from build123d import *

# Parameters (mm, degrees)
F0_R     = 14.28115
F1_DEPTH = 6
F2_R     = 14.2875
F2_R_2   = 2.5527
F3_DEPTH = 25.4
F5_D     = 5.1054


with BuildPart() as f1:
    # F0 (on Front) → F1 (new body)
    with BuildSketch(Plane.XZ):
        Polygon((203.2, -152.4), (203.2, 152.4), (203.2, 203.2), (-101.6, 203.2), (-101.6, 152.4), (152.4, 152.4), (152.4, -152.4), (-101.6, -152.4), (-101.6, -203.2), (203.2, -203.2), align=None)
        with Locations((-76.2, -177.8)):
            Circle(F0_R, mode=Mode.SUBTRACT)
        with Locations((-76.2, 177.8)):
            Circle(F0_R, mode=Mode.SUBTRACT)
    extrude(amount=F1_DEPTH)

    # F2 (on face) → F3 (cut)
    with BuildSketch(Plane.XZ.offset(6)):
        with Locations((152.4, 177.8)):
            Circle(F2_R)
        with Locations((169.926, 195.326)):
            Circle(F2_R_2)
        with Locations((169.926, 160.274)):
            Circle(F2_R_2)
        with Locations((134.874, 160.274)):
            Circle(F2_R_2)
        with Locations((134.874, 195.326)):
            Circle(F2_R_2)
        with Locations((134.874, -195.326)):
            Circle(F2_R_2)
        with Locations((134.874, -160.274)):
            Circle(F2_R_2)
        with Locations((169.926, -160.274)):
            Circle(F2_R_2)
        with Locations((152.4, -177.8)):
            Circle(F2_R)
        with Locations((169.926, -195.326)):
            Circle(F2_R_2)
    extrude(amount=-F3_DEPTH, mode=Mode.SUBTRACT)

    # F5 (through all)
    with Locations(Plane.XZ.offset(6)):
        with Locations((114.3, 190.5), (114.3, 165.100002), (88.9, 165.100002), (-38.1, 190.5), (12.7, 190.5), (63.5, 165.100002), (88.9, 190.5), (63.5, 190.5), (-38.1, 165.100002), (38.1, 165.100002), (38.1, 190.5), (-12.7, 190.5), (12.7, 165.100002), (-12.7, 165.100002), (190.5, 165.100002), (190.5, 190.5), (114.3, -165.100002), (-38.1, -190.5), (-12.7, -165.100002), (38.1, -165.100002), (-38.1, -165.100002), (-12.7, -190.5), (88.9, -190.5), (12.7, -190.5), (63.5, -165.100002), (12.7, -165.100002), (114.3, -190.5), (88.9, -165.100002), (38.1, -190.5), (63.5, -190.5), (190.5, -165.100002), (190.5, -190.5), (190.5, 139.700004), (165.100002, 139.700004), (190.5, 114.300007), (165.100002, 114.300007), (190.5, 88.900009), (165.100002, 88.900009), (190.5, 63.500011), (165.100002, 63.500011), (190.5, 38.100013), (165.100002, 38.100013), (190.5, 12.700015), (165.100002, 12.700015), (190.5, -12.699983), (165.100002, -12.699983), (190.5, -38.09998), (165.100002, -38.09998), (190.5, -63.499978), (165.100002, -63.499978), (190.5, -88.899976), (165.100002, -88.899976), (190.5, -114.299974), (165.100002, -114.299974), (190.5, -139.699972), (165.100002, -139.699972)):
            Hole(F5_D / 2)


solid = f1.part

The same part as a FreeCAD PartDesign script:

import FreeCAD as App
import Part
import Sketcher
Q = App.Units.Quantity

doc = App.newDocument("Part")
params = doc.addObject("Spreadsheet::Sheet", "Params")
for row, (alias, value) in enumerate([
    ("sketch1_width", "12 in"),
    ("sketch1_width2", "10 in"),
    ("sketch1_height", "2 in"),
    ("pad1_length", "6 mm"),
    ("sketch2_diameter", "1.125 in"),
    ("sketch2_diameter2", "0.201 in"),
    ("pocket1_length", "1 in"),
    ("sketch3_diameter", "0.201 in"),
    ("hole_diameter", "0.201 in"),
], start=1):
    params.set(f"A{row}", alias)
    params.set(f"B{row}", "=" + value)
    params.setAlias(f"B{row}", alias)

body = doc.addObject("PartDesign::Body", "Body")

sketch1 = body.newObject("Sketcher::SketchObject", "Sketch")
sketch1.AttachmentSupport = (doc.getObject("XZ_Plane"), [""])
sketch1.MapMode = "FlatFace"
sketch1.addGeometry([
    Part.LineSegment(App.Vector(203, 203, 0), App.Vector(-102, 203, 0)),
    Part.LineSegment(App.Vector(-102, 203, 0), App.Vector(-102, 152, 0)),
    Part.LineSegment(App.Vector(-102, 152, 0), App.Vector(152, 152, 0)),
    Part.LineSegment(App.Vector(152, 152, 0), App.Vector(152, -152, 0)),
    Part.LineSegment(App.Vector(152, -152, 0), App.Vector(-102, -152, 0)),
    Part.LineSegment(App.Vector(-102, -152, 0), App.Vector(-102, -203, 0)),
    Part.LineSegment(App.Vector(-102, -203, 0), App.Vector(203, -203, 0)),
    Part.LineSegment(App.Vector(203, -203, 0), App.Vector(203, 203, 0)),
    Part.Circle(App.Vector(-76, -178, 0), App.Vector(0, 0, 1), 14),
    Part.Circle(App.Vector(-76, 178, 0), App.Vector(0, 0, 1), 14),
], False)
sketch1.addConstraint([
    Sketcher.Constraint("Coincident", 0, 2, 1, 1),
    Sketcher.Constraint("Coincident", 1, 2, 2, 1),
    Sketcher.Constraint("Coincident", 2, 2, 3, 1),
    Sketcher.Constraint("Coincident", 3, 2, 4, 1),
    Sketcher.Constraint("Coincident", 4, 2, 5, 1),
    Sketcher.Constraint("Coincident", 5, 2, 6, 1),
    Sketcher.Constraint("Coincident", 6, 2, 7, 1),
    Sketcher.Constraint("Coincident", 7, 2, 0, 1),
    Sketcher.Constraint("Horizontal", 0),
    Sketcher.Constraint("Vertical", 1),
    Sketcher.Constraint("Horizontal", 2),
    Sketcher.Constraint("Vertical", 3),
    Sketcher.Constraint("Horizontal", 4),
    Sketcher.Constraint("Vertical", 5),
    Sketcher.Constraint("Horizontal", 6),
    Sketcher.Constraint("Vertical", 7),
    Sketcher.Constraint("Equal", 8, 9),
    Sketcher.Constraint("Symmetric", 8, 3, 9, 3, -1),
    Sketcher.Constraint("Symmetric", 1, 2, 4, 2, -1),
    Sketcher.Constraint("Equal", 6, 3),
    Sketcher.Constraint("Equal", 1, 5),
    Sketcher.Constraint("DistanceX", 0, 2, 0, 1, Q("12 in")),
    Sketcher.Constraint("DistanceX", 2, 1, 2, 2, Q("10 in")),
    Sketcher.Constraint("DistanceY", 1, 2, 1, 1, Q("2 in")),
    Sketcher.Constraint("DistanceX", 8, 3, -1, 1, Q("3 in")),
    Sketcher.Constraint("DistanceY", 8, 3, -1, 1, Q("7 in")),
    Sketcher.Constraint("DistanceX", 0, 2, -1, 1, Q("4 in")),
    Sketcher.Constraint("Diameter", 8, Q("1.1245 in")),
])
sketch1.setExpression("Constraints[21]", "Params.sketch1_width")
sketch1.setExpression("Constraints[22]", "Params.sketch1_width2")
sketch1.setExpression("Constraints[23]", "Params.sketch1_height")
pad1 = body.newObject("PartDesign::Pad", "Pad")
pad1.Profile = sketch1
pad1.setExpression("Length", "Params.pad1_length")

sketch2 = body.newObject("Sketcher::SketchObject", "Sketch001")
sketch2.AttachmentSupport = (doc.getObject("XZ_Plane"), [""])
sketch2.MapMode = "FlatFace"
sketch2.AttachmentOffset = App.Placement(App.Vector(0, 0, 6), App.Rotation())
sketch2.addGeometry([
    Part.Circle(App.Vector(152.4, 177.8, 0), App.Vector(0, 0, 1), 14.3),
    Part.Circle(App.Vector(169.9, 195.3, 0), App.Vector(0, 0, 1), 2.6),
    Part.Circle(App.Vector(169.9, 160.3, 0), App.Vector(0, 0, 1), 2.6),
    Part.Circle(App.Vector(134.9, 160.3, 0), App.Vector(0, 0, 1), 2.6),
    Part.Circle(App.Vector(134.9, 195.3, 0), App.Vector(0, 0, 1), 2.6),
    Part.Circle(App.Vector(134.9, -195.3, 0), App.Vector(0, 0, 1), 2.6),
    Part.Circle(App.Vector(134.9, -160.3, 0), App.Vector(0, 0, 1), 2.6),
    Part.Circle(App.Vector(169.9, -160.3, 0), App.Vector(0, 0, 1), 2.6),
    Part.Circle(App.Vector(152.4, -177.8, 0), App.Vector(0, 0, 1), 14.3),
    Part.Circle(App.Vector(169.9, -195.3, 0), App.Vector(0, 0, 1), 2.6),
], False)
sketch2.addConstraint([
    Sketcher.Constraint("Equal", 1, 2),
    Sketcher.Constraint("Equal", 2, 3),
    Sketcher.Constraint("Equal", 3, 4),
    Sketcher.Constraint("Equal", 4, 5),
    Sketcher.Constraint("Equal", 5, 6),
    Sketcher.Constraint("Equal", 6, 7),
    Sketcher.Constraint("Equal", 0, 8),
    Sketcher.Constraint("Equal", 7, 9),
    Sketcher.Constraint("Symmetric", 4, 3, 5, 3, -1),
    Sketcher.Constraint("Symmetric", 3, 3, 6, 3, -1),
    Sketcher.Constraint("Symmetric", 2, 3, 7, 3, -1),
    Sketcher.Constraint("Symmetric", 0, 3, 8, 3, -1),
    Sketcher.Constraint("Symmetric", 1, 3, 9, 3, -1),
    Sketcher.Constraint("Horizontal", 2, 3, 3, 3),
    Sketcher.Constraint("Horizontal", 1, 3, 4, 3),
    Sketcher.Constraint("Vertical", 1, 3, 2, 3),
    Sketcher.Constraint("Vertical", 3, 3, 4, 3),
    Sketcher.Constraint("Diameter", 0, Q("1.125 in")),
    Sketcher.Constraint("Diameter", 1, Q("0.201 in")),
    Sketcher.Constraint("DistanceX", -1, 1, 0, 3, Q("6 in")),
    Sketcher.Constraint("DistanceY", -1, 1, 0, 3, Q("7 in")),
    Sketcher.Constraint("DistanceY", 5, 3, 3, 3, Q("14 in")),
    Sketcher.Constraint("DistanceX", -1, 1, 1, 3, Q("6.69 in")),
    Sketcher.Constraint("DistanceY", -1, 1, 1, 3, Q("7.69 in")),
    Sketcher.Constraint("DistanceX", -1, 1, 3, 3, Q("5.31 in")),
])
sketch2.setExpression("Constraints[17]", "Params.sketch2_diameter")
sketch2.setExpression("Constraints[18]", "Params.sketch2_diameter2")
pocket1 = body.newObject("PartDesign::Pocket", "Pocket")
pocket1.Profile = sketch2
pocket1.setExpression("Length", "Params.pocket1_length")

sketch3 = body.newObject("Sketcher::SketchObject", "Sketch002")
sketch3.AttachmentSupport = (doc.getObject("XZ_Plane"), [""])
sketch3.MapMode = "FlatFace"
sketch3.AttachmentOffset = App.Placement(App.Vector(0, 0, 6), App.Rotation())
sketch3.addGeometry([
    Part.Circle(App.Vector(114.3, 190.5, 0), App.Vector(0, 0, 1), 2.6),
    Part.Circle(App.Vector(114.3, 165.1, 0), App.Vector(0, 0, 1), 2.6),
    Part.Circle(App.Vector(88.9, 165.1, 0), App.Vector(0, 0, 1), 2.6),
    Part.Circle(App.Vector(-38.1, 190.5, 0), App.Vector(0, 0, 1), 2.6),
    Part.Circle(App.Vector(12.7, 190.5, 0), App.Vector(0, 0, 1), 2.6),
    Part.Circle(App.Vector(63.5, 165.1, 0), App.Vector(0, 0, 1), 2.6),
    Part.Circle(App.Vector(88.9, 190.5, 0), App.Vector(0, 0, 1), 2.6),
    Part.Circle(App.Vector(63.5, 190.5, 0), App.Vector(0, 0, 1), 2.6),
    Part.Circle(App.Vector(-38.1, 165.1, 0), App.Vector(0, 0, 1), 2.6),
    Part.Circle(App.Vector(38.1, 165.1, 0), App.Vector(0, 0, 1), 2.6),
    Part.Circle(App.Vector(38.1, 190.5, 0), App.Vector(0, 0, 1), 2.6),
    Part.Circle(App.Vector(-12.7, 190.5, 0), App.Vector(0, 0, 1), 2.6),
    Part.Circle(App.Vector(12.7, 165.1, 0), App.Vector(0, 0, 1), 2.6),
    Part.Circle(App.Vector(-12.7, 165.1, 0), App.Vector(0, 0, 1), 2.6),
    Part.Circle(App.Vector(190.5, 165.1, 0), App.Vector(0, 0, 1), 2.6),
    Part.Circle(App.Vector(190.5, 190.5, 0), App.Vector(0, 0, 1), 2.6),
    Part.Circle(App.Vector(114.3, -165.1, 0), App.Vector(0, 0, 1), 2.6),
    Part.Circle(App.Vector(-38.1, -190.5, 0), App.Vector(0, 0, 1), 2.6),
    Part.Circle(App.Vector(-12.7, -165.1, 0), App.Vector(0, 0, 1), 2.6),
    Part.Circle(App.Vector(38.1, -165.1, 0), App.Vector(0, 0, 1), 2.6),
    Part.Circle(App.Vector(-38.1, -165.1, 0), App.Vector(0, 0, 1), 2.6),
    Part.Circle(App.Vector(-12.7, -190.5, 0), App.Vector(0, 0, 1), 2.6),
    Part.Circle(App.Vector(88.9, -190.5, 0), App.Vector(0, 0, 1), 2.6),
    Part.Circle(App.Vector(12.7, -190.5, 0), App.Vector(0, 0, 1), 2.6),
    Part.Circle(App.Vector(63.5, -165.1, 0), App.Vector(0, 0, 1), 2.6),
    Part.Circle(App.Vector(12.7, -165.1, 0), App.Vector(0, 0, 1), 2.6),
    Part.Circle(App.Vector(114.3, -190.5, 0), App.Vector(0, 0, 1), 2.6),
    Part.Circle(App.Vector(88.9, -165.1, 0), App.Vector(0, 0, 1), 2.6),
    Part.Circle(App.Vector(38.1, -190.5, 0), App.Vector(0, 0, 1), 2.6),
    Part.Circle(App.Vector(63.5, -190.5, 0), App.Vector(0, 0, 1), 2.6),
    Part.Circle(App.Vector(190.5, -165.1, 0), App.Vector(0, 0, 1), 2.6),
    Part.Circle(App.Vector(190.5, -190.5, 0), App.Vector(0, 0, 1), 2.6),
    Part.Circle(App.Vector(190.5, 139.7, 0), App.Vector(0, 0, 1), 2.6),
    Part.Circle(App.Vector(165.1, 139.7, 0), App.Vector(0, 0, 1), 2.6),
    Part.Circle(App.Vector(190.5, 114.3, 0), App.Vector(0, 0, 1), 2.6),
    Part.Circle(App.Vector(165.1, 114.3, 0), App.Vector(0, 0, 1), 2.6),
    Part.Circle(App.Vector(190.5, 88.9, 0), App.Vector(0, 0, 1), 2.6),
    Part.Circle(App.Vector(165.1, 88.9, 0), App.Vector(0, 0, 1), 2.6),
    Part.Circle(App.Vector(190.5, 63.5, 0), App.Vector(0, 0, 1), 2.6),
    Part.Circle(App.Vector(165.1, 63.5, 0), App.Vector(0, 0, 1), 2.6),
    Part.Circle(App.Vector(190.5, 38.1, 0), App.Vector(0, 0, 1), 2.6),
    Part.Circle(App.Vector(165.1, 38.1, 0), App.Vector(0, 0, 1), 2.6),
    Part.Circle(App.Vector(190.5, 12.7, 0), App.Vector(0, 0, 1), 2.6),
    Part.Circle(App.Vector(165.1, 12.7, 0), App.Vector(0, 0, 1), 2.6),
    Part.Circle(App.Vector(190.5, -12.7, 0), App.Vector(0, 0, 1), 2.6),
    Part.Circle(App.Vector(165.1, -12.7, 0), App.Vector(0, 0, 1), 2.6),
    Part.Circle(App.Vector(190.5, -38.1, 0), App.Vector(0, 0, 1), 2.6),
    Part.Circle(App.Vector(165.1, -38.1, 0), App.Vector(0, 0, 1), 2.6),
    Part.Circle(App.Vector(190.5, -63.5, 0), App.Vector(0, 0, 1), 2.6),
    Part.Circle(App.Vector(165.1, -63.5, 0), App.Vector(0, 0, 1), 2.6),
    Part.Circle(App.Vector(190.5, -88.9, 0), App.Vector(0, 0, 1), 2.6),
    Part.Circle(App.Vector(165.1, -88.9, 0), App.Vector(0, 0, 1), 2.6),
    Part.Circle(App.Vector(190.5, -114.3, 0), App.Vector(0, 0, 1), 2.6),
    Part.Circle(App.Vector(165.1, -114.3, 0), App.Vector(0, 0, 1), 2.6),
    Part.Circle(App.Vector(190.5, -139.7, 0), App.Vector(0, 0, 1), 2.6),
    Part.Circle(App.Vector(165.1, -139.7, 0), App.Vector(0, 0, 1), 2.6),
], False)
sketch3.addConstraint([
    Sketcher.Constraint("Equal", 0, 1),
    Sketcher.Constraint("Equal", 1, 2),
    Sketcher.Constraint("Equal", 2, 3),
    Sketcher.Constraint("Equal", 3, 4),
    Sketcher.Constraint("Equal", 4, 5),
    Sketcher.Constraint("Equal", 5, 6),
    Sketcher.Constraint("Equal", 6, 7),
    Sketcher.Constraint("Equal", 7, 8),
    Sketcher.Constraint("Equal", 8, 9),
    Sketcher.Constraint("Equal", 9, 10),
    Sketcher.Constraint("Equal", 10, 11),
    Sketcher.Constraint("Equal", 11, 12),
    Sketcher.Constraint("Equal", 12, 13),
    Sketcher.Constraint("Equal", 13, 14),
    Sketcher.Constraint("Equal", 14, 15),
    Sketcher.Constraint("Equal", 15, 16),
    Sketcher.Constraint("Equal", 16, 17),
    Sketcher.Constraint("Equal", 17, 18),
    Sketcher.Constraint("Equal", 18, 19),
    Sketcher.Constraint("Equal", 19, 20),
    Sketcher.Constraint("Equal", 20, 21),
    Sketcher.Constraint("Equal", 21, 22),
    Sketcher.Constraint("Equal", 22, 23),
    Sketcher.Constraint("Equal", 23, 24),
    Sketcher.Constraint("Equal", 24, 25),
    Sketcher.Constraint("Equal", 25, 26),
    Sketcher.Constraint("Equal", 26, 27),
    Sketcher.Constraint("Equal", 27, 28),
    Sketcher.Constraint("Equal", 28, 29),
    Sketcher.Constraint("Equal", 29, 30),
    Sketcher.Constraint("Equal", 30, 31),
    Sketcher.Constraint("Equal", 31, 32),
    Sketcher.Constraint("Equal", 32, 33),
    Sketcher.Constraint("Equal", 33, 34),
    Sketcher.Constraint("Equal", 34, 35),
    Sketcher.Constraint("Equal", 35, 36),
    Sketcher.Constraint("Equal", 36, 37),
    Sketcher.Constraint("Equal", 37, 38),
    Sketcher.Constraint("Equal", 38, 39),
    Sketcher.Constraint("Equal", 39, 40),
    Sketcher.Constraint("Equal", 40, 41),
    Sketcher.Constraint("Equal", 41, 42),
    Sketcher.Constraint("Equal", 42, 43),
    Sketcher.Constraint("Equal", 43, 44),
    Sketcher.Constraint("Equal", 44, 45),
    Sketcher.Constraint("Equal", 45, 46),
    Sketcher.Constraint("Equal", 46, 47),
    Sketcher.Constraint("Equal", 47, 48),
    Sketcher.Constraint("Equal", 48, 49),
    Sketcher.Constraint("Equal", 49, 50),
    Sketcher.Constraint("Equal", 50, 51),
    Sketcher.Constraint("Equal", 51, 52),
    Sketcher.Constraint("Equal", 52, 53),
    Sketcher.Constraint("Equal", 53, 54),
    Sketcher.Constraint("Equal", 54, 55),
    Sketcher.Constraint("Symmetric", 10, 3, 17, 3, -1, 1),
    Sketcher.Constraint("Symmetric", 12, 3, 18, 3, -1, 1),
    Sketcher.Constraint("Symmetric", 8, 3, 19, 3, -1, 1),
    Sketcher.Constraint("Symmetric", 9, 3, 20, 3, -1, 1),
    Sketcher.Constraint("Symmetric", 4, 3, 21, 3, -1, 1),
    Sketcher.Constraint("Symmetric", 11, 3, 23, 3, -1, 1),
    Sketcher.Constraint("Symmetric", 13, 3, 25, 3, -1, 1),
    Sketcher.Constraint("Symmetric", 3, 3, 28, 3, -1, 1),
    Sketcher.Constraint("Symmetric", 8, 3, 9, 3, -2),
    Sketcher.Constraint("Symmetric", 3, 3, 10, 3, -2),
    Sketcher.Constraint("Symmetric", 4, 3, 11, 3, -2),
    Sketcher.Constraint("Symmetric", 12, 3, 13, 3, -2),
    Sketcher.Constraint("Symmetric", 1, 3, 16, 3, -1),
    Sketcher.Constraint("Symmetric", 6, 3, 22, 3, -1),
    Sketcher.Constraint("Symmetric", 5, 3, 24, 3, -1),
    Sketcher.Constraint("Symmetric", 0, 3, 26, 3, -1),
    Sketcher.Constraint("Symmetric", 2, 3, 27, 3, -1),
    Sketcher.Constraint("Symmetric", 7, 3, 29, 3, -1),
    Sketcher.Constraint("Symmetric", 14, 3, 30, 3, -1),
    Sketcher.Constraint("Symmetric", 15, 3, 31, 3, -1),
    Sketcher.Constraint("Horizontal", 1, 3, 2, 3),
    Sketcher.Constraint("Horizontal", 0, 3, 3, 3),
    Sketcher.Constraint("Horizontal", 3, 3, 4, 3),
    Sketcher.Constraint("Horizontal", 2, 3, 5, 3),
    Sketcher.Constraint("Horizontal", 4, 3, 6, 3),
    Sketcher.Constraint("Horizontal", 6, 3, 7, 3),
    Sketcher.Constraint("Horizontal", 5, 3, 8, 3),
    Sketcher.Constraint("Horizontal", 9, 3, 12, 3),
    Sketcher.Constraint("Horizontal", 13, 3, 14, 3),
    Sketcher.Constraint("Horizontal", 11, 3, 15, 3),
    Sketcher.Constraint("Horizontal", 32, 3, 33, 3),
    Sketcher.Constraint("Horizontal", 34, 3, 35, 3),
    Sketcher.Constraint("Horizontal", 36, 3, 37, 3),
    Sketcher.Constraint("Horizontal", 38, 3, 39, 3),
    Sketcher.Constraint("Horizontal", 40, 3, 41, 3),
    Sketcher.Constraint("Horizontal", 42, 3, 43, 3),
    Sketcher.Constraint("Horizontal", 44, 3, 45, 3),
    Sketcher.Constraint("Horizontal", 46, 3, 47, 3),
    Sketcher.Constraint("Horizontal", 48, 3, 49, 3),
    Sketcher.Constraint("Horizontal", 50, 3, 51, 3),
    Sketcher.Constraint("Horizontal", 52, 3, 53, 3),
    Sketcher.Constraint("Horizontal", 54, 3, 55, 3),
    Sketcher.Constraint("Vertical", 0, 3, 1, 3),
    Sketcher.Constraint("Vertical", 2, 3, 6, 3),
    Sketcher.Constraint("Vertical", 5, 3, 7, 3),
    Sketcher.Constraint("Vertical", 3, 3, 8, 3),
    Sketcher.Constraint("Vertical", 4, 3, 12, 3),
    Sketcher.Constraint("Vertical", 14, 3, 15, 3),
    Sketcher.Constraint("Vertical", 31, 3, 32, 3),
    Sketcher.Constraint("Vertical", 32, 3, 34, 3),
    Sketcher.Constraint("Vertical", 33, 3, 35, 3),
    Sketcher.Constraint("Vertical", 34, 3, 36, 3),
    Sketcher.Constraint("Vertical", 35, 3, 37, 3),
    Sketcher.Constraint("Vertical", 36, 3, 38, 3),
    Sketcher.Constraint("Vertical", 37, 3, 39, 3),
    Sketcher.Constraint("Vertical", 38, 3, 40, 3),
    Sketcher.Constraint("Vertical", 39, 3, 41, 3),
    Sketcher.Constraint("Vertical", 40, 3, 42, 3),
    Sketcher.Constraint("Vertical", 41, 3, 43, 3),
    Sketcher.Constraint("Vertical", 42, 3, 44, 3),
    Sketcher.Constraint("Vertical", 43, 3, 45, 3),
    Sketcher.Constraint("Vertical", 44, 3, 46, 3),
    Sketcher.Constraint("Vertical", 45, 3, 47, 3),
    Sketcher.Constraint("Vertical", 46, 3, 48, 3),
    Sketcher.Constraint("Vertical", 47, 3, 49, 3),
    Sketcher.Constraint("Vertical", 48, 3, 50, 3),
    Sketcher.Constraint("Vertical", 49, 3, 51, 3),
    Sketcher.Constraint("Vertical", 50, 3, 52, 3),
    Sketcher.Constraint("Vertical", 51, 3, 53, 3),
    Sketcher.Constraint("Vertical", 52, 3, 54, 3),
    Sketcher.Constraint("Vertical", 53, 3, 55, 3),
    Sketcher.Constraint("Diameter", 0, Q("0.201 in")),
    Sketcher.Constraint("DistanceY", 1, 3, 0, 3, Q("0.9999999 in")),
    Sketcher.Constraint("DistanceX", 2, 3, 1, 3, Q("1 in")),
    Sketcher.Constraint("DistanceX", 3, 3, 2, 3, Q("5 in")),
    Sketcher.Constraint("DistanceX", 3, 3, 4, 3, Q("2 in")),
    Sketcher.Constraint("DistanceX", 5, 3, 2, 3, Q("1 in")),
    Sketcher.Constraint("DistanceX", 9, 3, 5, 3, Q("1 in")),
    Sketcher.Constraint("DistanceX", 1, 3, 14, 3, Q("3 in")),
    Sketcher.Constraint("DistanceY", 16, 3, 1, 3, Q("13.0000002 in")),
    Sketcher.Constraint("DistanceY", 32, 3, 14, 3, Q("0.9999999 in")),
    Sketcher.Constraint("DistanceX", 33, 3, 32, 3, Q("0.9999999 in")),
    Sketcher.Constraint("DistanceY", 34, 3, 32, 3, Q("0.9999999 in")),
    Sketcher.Constraint("DistanceY", 36, 3, 34, 3, Q("0.9999999 in")),
    Sketcher.Constraint("DistanceY", 38, 3, 36, 3, Q("0.9999999 in")),
    Sketcher.Constraint("DistanceY", 40, 3, 38, 3, Q("0.9999999 in")),
    Sketcher.Constraint("DistanceY", 42, 3, 40, 3, Q("0.9999999 in")),
    Sketcher.Constraint("DistanceY", 44, 3, 42, 3, Q("0.9999999 in")),
    Sketcher.Constraint("DistanceY", 46, 3, 44, 3, Q("0.9999999 in")),
    Sketcher.Constraint("DistanceY", 48, 3, 46, 3, Q("0.9999999 in")),
    Sketcher.Constraint("DistanceY", 50, 3, 48, 3, Q("0.9999999 in")),
    Sketcher.Constraint("DistanceY", 52, 3, 50, 3, Q("0.9999999 in")),
    Sketcher.Constraint("DistanceY", 54, 3, 52, 3, Q("0.9999999 in")),
])
sketch3.setExpression("Constraints[126]", "Params.sketch3_diameter")
doc.recompute()
hole = body.newObject("PartDesign::Hole", "Hole")
hole.Profile = sketch3
hole.ThreadType = "None"
hole.setExpression("Diameter", "Params.hole_diameter")
hole.DepthType = "ThroughAll"

doc.recompute()
